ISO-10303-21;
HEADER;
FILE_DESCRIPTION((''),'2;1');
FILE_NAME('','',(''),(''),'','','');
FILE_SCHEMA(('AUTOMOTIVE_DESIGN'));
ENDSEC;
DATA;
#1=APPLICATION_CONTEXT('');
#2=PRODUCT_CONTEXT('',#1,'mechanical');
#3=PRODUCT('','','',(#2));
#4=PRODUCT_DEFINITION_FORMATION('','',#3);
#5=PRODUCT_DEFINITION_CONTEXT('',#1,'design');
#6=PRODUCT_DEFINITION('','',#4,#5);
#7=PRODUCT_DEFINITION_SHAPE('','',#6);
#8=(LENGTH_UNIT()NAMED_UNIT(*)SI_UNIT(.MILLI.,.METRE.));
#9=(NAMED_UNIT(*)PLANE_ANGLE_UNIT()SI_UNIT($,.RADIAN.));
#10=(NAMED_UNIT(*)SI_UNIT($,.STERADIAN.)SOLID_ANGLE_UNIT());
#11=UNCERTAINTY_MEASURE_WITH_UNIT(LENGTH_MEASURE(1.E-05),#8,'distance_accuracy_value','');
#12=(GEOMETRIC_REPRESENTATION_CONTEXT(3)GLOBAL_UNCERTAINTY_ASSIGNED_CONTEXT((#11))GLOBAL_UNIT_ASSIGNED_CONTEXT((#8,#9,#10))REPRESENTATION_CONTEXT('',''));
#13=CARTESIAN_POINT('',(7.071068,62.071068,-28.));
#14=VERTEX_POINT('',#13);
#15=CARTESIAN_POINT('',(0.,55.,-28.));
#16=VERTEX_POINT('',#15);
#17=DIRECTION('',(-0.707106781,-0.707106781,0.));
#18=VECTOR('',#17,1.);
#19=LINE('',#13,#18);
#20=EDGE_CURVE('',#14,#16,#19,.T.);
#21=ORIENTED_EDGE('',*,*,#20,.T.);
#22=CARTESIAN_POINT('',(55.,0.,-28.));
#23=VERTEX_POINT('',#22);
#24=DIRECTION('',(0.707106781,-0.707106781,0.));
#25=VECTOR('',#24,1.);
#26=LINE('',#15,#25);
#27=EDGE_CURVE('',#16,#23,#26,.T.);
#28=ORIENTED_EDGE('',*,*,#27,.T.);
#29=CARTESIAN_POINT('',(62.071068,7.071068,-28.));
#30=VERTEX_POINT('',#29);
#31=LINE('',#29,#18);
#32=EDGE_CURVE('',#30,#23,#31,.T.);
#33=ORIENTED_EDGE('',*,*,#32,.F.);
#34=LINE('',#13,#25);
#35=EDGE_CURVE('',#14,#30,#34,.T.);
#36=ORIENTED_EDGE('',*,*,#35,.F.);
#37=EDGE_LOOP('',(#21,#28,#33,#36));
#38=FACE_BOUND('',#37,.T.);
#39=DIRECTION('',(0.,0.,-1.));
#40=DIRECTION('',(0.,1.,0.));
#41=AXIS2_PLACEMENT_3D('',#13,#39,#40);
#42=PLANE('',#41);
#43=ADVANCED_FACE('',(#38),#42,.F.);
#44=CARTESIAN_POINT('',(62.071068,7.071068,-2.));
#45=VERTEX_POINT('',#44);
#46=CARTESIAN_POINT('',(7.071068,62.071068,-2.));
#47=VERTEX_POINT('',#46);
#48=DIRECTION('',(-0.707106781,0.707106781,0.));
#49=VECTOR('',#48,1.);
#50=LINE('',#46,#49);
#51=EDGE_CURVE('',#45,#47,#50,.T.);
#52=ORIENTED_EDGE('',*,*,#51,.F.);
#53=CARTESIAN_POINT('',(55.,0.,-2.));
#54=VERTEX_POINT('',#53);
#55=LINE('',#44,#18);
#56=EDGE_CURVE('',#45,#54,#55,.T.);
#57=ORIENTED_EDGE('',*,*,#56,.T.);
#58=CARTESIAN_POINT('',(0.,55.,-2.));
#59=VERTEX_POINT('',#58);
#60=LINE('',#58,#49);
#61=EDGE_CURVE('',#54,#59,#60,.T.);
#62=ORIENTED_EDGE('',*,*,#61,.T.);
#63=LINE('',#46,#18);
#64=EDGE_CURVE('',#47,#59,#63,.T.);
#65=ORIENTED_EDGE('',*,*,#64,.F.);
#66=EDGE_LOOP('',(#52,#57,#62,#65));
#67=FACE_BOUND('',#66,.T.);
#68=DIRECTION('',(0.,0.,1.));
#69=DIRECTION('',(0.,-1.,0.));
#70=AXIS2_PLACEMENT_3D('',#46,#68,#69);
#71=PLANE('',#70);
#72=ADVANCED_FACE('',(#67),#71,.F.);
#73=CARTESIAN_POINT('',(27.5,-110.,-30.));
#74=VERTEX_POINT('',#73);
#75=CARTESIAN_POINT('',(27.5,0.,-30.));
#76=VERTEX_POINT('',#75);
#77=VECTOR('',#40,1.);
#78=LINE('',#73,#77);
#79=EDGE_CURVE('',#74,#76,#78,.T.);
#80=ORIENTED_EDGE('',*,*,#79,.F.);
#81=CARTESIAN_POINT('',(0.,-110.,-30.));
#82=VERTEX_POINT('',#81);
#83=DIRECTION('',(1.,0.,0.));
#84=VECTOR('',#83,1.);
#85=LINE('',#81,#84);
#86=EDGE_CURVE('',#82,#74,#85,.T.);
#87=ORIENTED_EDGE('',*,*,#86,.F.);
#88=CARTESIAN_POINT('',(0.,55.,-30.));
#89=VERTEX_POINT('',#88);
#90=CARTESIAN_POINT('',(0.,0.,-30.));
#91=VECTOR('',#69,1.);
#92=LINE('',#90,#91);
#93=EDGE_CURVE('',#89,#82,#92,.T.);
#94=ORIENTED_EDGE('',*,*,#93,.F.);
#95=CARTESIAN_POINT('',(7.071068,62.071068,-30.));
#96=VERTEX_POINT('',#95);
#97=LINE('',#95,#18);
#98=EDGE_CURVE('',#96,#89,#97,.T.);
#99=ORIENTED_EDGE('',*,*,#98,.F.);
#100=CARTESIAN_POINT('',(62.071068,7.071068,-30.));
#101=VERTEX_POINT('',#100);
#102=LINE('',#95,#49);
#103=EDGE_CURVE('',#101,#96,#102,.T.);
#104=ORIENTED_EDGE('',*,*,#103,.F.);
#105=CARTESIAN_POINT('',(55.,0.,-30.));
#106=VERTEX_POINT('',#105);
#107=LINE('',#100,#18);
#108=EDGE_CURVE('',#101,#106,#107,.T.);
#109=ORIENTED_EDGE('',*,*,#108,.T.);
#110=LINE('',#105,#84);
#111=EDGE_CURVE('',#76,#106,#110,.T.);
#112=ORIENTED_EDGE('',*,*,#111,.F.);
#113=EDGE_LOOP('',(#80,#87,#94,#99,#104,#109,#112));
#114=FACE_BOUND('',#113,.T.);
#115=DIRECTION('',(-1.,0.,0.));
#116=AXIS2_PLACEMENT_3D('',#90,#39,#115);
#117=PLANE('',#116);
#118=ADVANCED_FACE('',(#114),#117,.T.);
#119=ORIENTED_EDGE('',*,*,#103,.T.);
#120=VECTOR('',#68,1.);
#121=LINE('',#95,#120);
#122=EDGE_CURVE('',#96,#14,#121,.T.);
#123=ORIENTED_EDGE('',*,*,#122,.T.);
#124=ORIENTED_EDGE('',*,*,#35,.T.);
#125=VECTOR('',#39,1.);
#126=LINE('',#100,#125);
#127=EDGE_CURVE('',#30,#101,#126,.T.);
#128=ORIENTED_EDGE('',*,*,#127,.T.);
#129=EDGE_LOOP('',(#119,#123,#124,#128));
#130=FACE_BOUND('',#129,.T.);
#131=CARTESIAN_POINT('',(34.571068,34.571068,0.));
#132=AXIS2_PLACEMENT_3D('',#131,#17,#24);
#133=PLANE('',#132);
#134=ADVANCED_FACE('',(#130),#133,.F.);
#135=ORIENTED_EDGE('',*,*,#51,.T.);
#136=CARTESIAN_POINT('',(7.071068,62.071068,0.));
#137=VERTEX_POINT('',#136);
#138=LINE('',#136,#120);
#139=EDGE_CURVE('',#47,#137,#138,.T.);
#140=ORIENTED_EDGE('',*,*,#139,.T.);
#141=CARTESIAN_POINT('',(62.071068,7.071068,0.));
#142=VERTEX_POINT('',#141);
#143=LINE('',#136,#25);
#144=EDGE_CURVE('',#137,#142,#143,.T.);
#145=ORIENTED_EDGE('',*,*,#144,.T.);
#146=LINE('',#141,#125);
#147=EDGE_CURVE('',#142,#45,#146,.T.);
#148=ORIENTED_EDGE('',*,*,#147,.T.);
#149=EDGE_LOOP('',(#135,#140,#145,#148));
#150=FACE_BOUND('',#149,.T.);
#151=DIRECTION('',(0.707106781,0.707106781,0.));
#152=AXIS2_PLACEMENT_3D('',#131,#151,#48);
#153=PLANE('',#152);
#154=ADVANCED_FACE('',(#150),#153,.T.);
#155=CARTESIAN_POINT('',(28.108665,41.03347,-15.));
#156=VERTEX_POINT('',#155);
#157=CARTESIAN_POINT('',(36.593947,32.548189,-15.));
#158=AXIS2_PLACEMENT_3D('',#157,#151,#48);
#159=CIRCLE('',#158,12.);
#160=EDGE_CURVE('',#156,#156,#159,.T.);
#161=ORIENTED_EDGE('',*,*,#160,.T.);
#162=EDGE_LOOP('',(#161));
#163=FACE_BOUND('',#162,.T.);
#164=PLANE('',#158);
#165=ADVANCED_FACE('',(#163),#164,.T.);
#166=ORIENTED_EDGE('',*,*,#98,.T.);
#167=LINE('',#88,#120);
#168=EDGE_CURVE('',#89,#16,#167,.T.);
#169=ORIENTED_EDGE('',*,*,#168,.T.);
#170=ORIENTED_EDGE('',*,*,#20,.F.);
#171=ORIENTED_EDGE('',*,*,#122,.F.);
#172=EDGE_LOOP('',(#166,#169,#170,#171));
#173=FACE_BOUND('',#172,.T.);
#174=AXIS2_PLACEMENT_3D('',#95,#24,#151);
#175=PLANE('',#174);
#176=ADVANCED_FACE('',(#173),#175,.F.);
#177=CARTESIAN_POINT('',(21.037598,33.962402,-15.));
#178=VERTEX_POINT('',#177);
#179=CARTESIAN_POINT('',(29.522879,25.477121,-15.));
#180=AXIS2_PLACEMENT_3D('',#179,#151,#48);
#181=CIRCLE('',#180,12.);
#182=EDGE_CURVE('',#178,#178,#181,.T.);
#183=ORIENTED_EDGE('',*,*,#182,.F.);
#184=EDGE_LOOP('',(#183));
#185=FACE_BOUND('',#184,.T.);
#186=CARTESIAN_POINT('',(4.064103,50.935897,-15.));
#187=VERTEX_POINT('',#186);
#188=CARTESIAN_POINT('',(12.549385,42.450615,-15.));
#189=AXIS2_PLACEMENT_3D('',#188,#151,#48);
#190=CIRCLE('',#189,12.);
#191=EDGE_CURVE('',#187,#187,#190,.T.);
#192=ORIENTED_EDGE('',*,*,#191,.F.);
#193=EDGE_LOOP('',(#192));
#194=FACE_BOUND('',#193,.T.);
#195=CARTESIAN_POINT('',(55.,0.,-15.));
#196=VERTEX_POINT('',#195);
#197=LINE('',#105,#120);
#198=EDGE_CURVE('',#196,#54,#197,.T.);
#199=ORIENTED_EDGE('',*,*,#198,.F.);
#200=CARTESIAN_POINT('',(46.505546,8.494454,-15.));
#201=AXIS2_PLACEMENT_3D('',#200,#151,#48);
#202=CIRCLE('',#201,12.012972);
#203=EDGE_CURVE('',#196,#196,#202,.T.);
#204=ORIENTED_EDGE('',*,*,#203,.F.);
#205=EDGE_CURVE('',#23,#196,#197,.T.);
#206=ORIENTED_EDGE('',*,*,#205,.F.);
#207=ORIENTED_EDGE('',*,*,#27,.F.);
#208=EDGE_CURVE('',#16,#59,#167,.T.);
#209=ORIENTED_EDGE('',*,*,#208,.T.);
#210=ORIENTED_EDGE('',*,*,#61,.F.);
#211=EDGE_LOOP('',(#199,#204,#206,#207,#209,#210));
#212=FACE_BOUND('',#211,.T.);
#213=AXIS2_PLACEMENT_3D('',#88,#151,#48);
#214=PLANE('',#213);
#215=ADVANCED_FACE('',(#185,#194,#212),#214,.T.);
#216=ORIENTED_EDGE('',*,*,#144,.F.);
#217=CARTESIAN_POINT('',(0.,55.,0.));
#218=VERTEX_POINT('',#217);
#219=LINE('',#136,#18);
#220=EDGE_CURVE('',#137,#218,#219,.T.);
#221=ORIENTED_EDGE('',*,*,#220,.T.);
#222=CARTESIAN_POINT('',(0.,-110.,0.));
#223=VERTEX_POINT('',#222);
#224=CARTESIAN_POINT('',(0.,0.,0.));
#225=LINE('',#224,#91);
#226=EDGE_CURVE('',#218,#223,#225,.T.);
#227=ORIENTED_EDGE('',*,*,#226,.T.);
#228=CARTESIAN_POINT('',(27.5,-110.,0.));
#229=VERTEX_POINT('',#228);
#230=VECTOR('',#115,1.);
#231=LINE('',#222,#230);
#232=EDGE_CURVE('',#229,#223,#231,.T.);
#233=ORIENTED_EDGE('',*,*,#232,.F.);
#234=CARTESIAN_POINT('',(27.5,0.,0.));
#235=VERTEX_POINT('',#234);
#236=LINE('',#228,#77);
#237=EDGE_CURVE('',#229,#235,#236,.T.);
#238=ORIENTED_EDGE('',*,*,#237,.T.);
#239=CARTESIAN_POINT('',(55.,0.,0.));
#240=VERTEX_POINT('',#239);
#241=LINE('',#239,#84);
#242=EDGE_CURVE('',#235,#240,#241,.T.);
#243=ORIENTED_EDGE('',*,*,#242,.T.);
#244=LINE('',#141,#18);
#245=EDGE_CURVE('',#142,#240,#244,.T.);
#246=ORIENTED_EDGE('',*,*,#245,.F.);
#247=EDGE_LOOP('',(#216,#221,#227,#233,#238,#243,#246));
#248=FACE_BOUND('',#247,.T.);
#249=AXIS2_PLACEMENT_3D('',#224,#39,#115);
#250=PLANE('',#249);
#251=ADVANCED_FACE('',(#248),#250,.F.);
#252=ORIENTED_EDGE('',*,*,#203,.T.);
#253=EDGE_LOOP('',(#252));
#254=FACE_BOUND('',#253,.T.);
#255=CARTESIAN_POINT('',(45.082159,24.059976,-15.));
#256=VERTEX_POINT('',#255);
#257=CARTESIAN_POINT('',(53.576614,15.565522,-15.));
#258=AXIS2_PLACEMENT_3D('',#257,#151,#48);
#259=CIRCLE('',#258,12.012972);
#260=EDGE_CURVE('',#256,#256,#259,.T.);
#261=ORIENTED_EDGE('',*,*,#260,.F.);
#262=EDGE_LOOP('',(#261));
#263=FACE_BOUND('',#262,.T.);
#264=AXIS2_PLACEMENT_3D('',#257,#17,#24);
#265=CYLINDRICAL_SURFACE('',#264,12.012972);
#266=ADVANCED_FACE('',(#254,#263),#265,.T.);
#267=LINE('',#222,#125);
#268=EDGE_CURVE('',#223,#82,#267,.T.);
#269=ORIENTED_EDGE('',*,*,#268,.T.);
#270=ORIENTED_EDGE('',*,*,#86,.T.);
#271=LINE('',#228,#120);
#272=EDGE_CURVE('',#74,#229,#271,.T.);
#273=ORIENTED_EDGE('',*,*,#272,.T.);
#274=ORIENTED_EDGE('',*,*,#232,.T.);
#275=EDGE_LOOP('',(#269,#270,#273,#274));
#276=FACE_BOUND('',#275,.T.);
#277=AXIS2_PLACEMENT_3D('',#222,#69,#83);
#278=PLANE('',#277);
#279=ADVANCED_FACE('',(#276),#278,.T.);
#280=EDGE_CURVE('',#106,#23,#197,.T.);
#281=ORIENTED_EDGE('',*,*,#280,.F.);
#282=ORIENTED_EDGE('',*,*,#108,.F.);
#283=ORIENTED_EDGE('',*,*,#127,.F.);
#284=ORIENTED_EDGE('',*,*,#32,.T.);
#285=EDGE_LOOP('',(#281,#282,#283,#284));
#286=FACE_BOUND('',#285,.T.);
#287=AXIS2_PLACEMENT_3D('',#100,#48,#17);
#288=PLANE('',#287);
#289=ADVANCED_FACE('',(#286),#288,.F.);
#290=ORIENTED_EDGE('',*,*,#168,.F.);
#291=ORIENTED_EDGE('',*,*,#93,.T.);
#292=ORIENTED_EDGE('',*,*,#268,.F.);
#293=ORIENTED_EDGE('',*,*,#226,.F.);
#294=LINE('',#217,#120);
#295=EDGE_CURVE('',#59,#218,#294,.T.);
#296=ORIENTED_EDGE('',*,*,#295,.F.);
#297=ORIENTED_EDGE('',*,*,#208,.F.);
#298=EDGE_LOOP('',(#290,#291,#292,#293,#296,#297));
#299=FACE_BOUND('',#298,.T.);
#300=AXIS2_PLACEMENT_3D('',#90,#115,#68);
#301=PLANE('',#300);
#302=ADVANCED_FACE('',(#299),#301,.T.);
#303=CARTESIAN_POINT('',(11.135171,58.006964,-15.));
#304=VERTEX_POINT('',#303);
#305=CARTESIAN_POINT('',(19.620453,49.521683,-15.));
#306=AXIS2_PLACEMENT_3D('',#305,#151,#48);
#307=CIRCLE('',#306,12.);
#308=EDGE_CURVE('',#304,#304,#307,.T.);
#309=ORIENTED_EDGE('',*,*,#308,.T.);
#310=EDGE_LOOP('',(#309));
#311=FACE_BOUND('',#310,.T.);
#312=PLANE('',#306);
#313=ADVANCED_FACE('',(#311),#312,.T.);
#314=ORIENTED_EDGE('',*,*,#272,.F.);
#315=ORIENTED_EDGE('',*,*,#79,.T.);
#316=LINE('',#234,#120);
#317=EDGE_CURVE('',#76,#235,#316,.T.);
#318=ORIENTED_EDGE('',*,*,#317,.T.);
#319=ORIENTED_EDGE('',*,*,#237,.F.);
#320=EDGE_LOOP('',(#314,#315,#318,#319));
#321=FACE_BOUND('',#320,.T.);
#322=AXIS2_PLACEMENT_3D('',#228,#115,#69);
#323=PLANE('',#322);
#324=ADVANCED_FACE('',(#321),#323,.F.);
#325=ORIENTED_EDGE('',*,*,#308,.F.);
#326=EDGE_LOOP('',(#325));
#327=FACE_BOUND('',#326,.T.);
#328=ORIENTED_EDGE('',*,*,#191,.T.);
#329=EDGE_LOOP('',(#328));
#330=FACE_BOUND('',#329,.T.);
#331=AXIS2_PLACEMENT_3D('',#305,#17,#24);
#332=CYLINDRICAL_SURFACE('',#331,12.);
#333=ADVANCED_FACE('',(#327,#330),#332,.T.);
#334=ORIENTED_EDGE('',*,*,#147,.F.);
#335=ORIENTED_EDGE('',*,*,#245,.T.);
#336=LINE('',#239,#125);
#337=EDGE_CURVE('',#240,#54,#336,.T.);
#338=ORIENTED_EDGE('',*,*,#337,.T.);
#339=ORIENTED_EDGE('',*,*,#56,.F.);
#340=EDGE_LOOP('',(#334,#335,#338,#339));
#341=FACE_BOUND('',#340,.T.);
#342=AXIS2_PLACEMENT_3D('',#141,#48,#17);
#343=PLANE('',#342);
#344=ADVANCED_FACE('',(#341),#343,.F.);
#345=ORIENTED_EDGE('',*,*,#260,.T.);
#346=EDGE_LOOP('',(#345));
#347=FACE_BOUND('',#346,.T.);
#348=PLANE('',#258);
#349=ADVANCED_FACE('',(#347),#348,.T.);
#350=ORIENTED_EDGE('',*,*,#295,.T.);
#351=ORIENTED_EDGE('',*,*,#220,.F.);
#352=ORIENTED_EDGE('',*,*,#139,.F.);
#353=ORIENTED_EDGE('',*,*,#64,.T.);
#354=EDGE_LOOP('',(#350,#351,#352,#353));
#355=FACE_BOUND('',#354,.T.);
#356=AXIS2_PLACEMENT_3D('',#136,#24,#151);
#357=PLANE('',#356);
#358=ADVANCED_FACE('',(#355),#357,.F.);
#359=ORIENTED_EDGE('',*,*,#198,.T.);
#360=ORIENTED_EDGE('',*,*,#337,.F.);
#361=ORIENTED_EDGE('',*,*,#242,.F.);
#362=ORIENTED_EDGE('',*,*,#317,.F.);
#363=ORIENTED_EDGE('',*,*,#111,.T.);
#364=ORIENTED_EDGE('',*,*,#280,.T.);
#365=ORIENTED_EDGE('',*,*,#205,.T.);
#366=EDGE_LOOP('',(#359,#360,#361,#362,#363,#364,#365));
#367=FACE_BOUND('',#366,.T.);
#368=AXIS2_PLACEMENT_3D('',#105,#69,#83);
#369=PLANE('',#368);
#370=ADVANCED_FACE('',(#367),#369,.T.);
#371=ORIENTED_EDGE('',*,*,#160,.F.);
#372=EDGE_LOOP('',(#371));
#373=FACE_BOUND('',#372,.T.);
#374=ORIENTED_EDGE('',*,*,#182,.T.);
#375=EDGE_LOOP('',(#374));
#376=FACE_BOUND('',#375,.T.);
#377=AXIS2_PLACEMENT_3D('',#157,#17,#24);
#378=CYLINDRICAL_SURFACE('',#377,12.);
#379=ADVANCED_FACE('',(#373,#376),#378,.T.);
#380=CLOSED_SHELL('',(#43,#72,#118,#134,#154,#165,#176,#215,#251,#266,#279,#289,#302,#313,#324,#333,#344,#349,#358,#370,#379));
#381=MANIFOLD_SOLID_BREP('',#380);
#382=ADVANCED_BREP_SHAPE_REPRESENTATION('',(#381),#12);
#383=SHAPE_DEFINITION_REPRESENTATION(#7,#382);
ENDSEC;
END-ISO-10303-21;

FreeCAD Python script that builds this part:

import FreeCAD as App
import Part
import Sketcher
from FreeCAD import Vector
Q = App.Units.Quantity


def add_polygon(sketch, points):
    """Adds a closed chain of lines whose ends are joined by coincident constraints."""
    first, n = sketch.GeometryCount, len(points)
    for a, b in zip(points, points[1:] + points[:1]):
        sketch.addGeometry(Part.LineSegment(App.Vector(*a, 0), App.Vector(*b, 0)), False)
    for i in range(n):
        sketch.addConstraint(Sketcher.Constraint("Coincident", first + i, 2, first + (i + 1) % n, 1))

doc = App.newDocument("Part")
body = doc.addObject("PartDesign::Body", "Body")

# Sketch on XY plane
sketch1 = body.newObject("Sketcher::SketchObject", "Sketch")
sketch1.AttachmentSupport = (doc.getObject("XY_Plane"), [""])
sketch1.MapMode = "FlatFace"
add_polygon(sketch1, [(0, 55), (0, 0), (55, 0)])  # lines 0-2
sketch1.addConstraint([
    Sketcher.Constraint("Vertical", 0),
    Sketcher.Constraint("Horizontal", 1),
    Sketcher.Constraint("Coincident", 0, 2, -1, 1),
    Sketcher.Constraint("Equal", 1, 0),
    Sketcher.Constraint("DistanceX", 1, 1, 1, 2, Q("55 mm")),
])
pad1 = body.newObject("PartDesign::Pad", "Pad")
pad1.Profile = sketch1
pad1.Length = 30
pad1.Reversed = True

# Sketch on an angled plane
sketch2 = body.newObject("Sketcher::SketchObject", "Sketch001")
sketch2.Placement = App.Placement(Vector(27.5, 27.5, 0), App.Rotation(Vector(0, 0, -1), Vector(-0.707106781, 0.707106781, 0), Vector(0.707106781, 0.707106781, 0), "ZXY"))
add_polygon(sketch2, [(0, 38.9), (0, -38.9), (2, -38.9), (2, 38.9)])  # lines 0-3
add_polygon(sketch2, [(28, 38.9), (28, -38.9), (30, -38.9), (30, 38.9)])  # lines 4-7
sketch2.addConstraint([
    Sketcher.Constraint("Vertical", 0),
    Sketcher.Constraint("Horizontal", 1),
    Sketcher.Constraint("Vertical", 2),
    Sketcher.Constraint("Horizontal", 3),
    Sketcher.Constraint("Vertical", 4),
    Sketcher.Constraint("Horizontal", 5),
    Sketcher.Constraint("Vertical", 6),
    Sketcher.Constraint("Horizontal", 7),
    Sketcher.Constraint("Symmetric", 0, 2, 3, 2, -1, 1),
    Sketcher.Constraint("Horizontal", 1, 2, 4, 2),
    Sketcher.Constraint("Horizontal", 3, 2, 6, 2),
    Sketcher.Constraint("Equal", 3, 5),
    Sketcher.Constraint("DistanceX", 1, 1, 1, 2, Q("2 mm")),
    Sketcher.Constraint("DistanceX", -1, 1, 4, 2, Q("28 mm")),
    Sketcher.Constraint("DistanceY", 0, 2, 0, 1, Q("77.781746 mm")),
])
pad2 = body.newObject("PartDesign::Pad", "Pad001")
pad2.Profile = sketch2
pad2.Length = 10

# Sketch on XZ plane
sketch3 = body.newObject("Sketcher::SketchObject", "Sketch002")
sketch3.AttachmentSupport = (doc.getObject("XZ_Plane"), [""])
sketch3.MapMode = "FlatFace"
add_polygon(sketch3, [(0, 0), (0, -30), (28, -30), (28, 0)])  # lines 0-3
sketch3.addConstraint([
    Sketcher.Constraint("Vertical", 0),
    Sketcher.Constraint("Horizontal", 1),
    Sketcher.Constraint("Vertical", 2),
    Sketcher.Constraint("Horizontal", 3),
    Sketcher.Constraint("Coincident", 3, 2, -1, 1),
    Sketcher.Constraint("DistanceY", 0, 2, 0, 1, Q("30 mm")),
    Sketcher.Constraint("DistanceX", 1, 1, 1, 2, Q("27.5 mm")),
])
pad3 = body.newObject("PartDesign::Pad", "Pad002")
pad3.Profile = sketch3
pad3.Length = 110

# Sketch on an angled plane
sketch4 = body.newObject("Sketcher::SketchObject", "Sketch003")
sketch4.Placement = App.Placement(Vector(27.5, 27.5, 0), App.Rotation(Vector(0, 0, -1), Vector(-0.707106781, 0.707106781, 0), Vector(0.707106781, 0.707106781, 0), "ZXY"))
sketch4.addGeometry([
    Part.Circle(Vector(15, -27, 0), Vector(0, 0, 1), 12),
    Part.Circle(Vector(15, -3, 0), Vector(0, 0, 1), 12),
    Part.Circle(Vector(15, 21, 0), Vector(0, 0, 1), 12),
], False)
sketch4.addConstraint([
    Sketcher.Constraint("Equal", 1, 2),
    Sketcher.Constraint("Vertical", 0, 3, 1, 3),
    Sketcher.Constraint("Vertical", 1, 3, 2, 3),
    Sketcher.Constraint("Diameter", 1, Q("24 mm")),
    Sketcher.Constraint("DistanceX", -1, 1, 0, 3, Q("15 mm")),
    Sketcher.Constraint("Diameter", 0, Q("24.025945 mm")),
    Sketcher.Constraint("DistanceY", 0, 3, -1, 1, Q("26.877901 mm")),
    Sketcher.Constraint("DistanceY", 1, 3, -1, 1, Q("2.860783 mm")),
    Sketcher.Constraint("DistanceY", -1, 1, 2, 3, Q("21.143363 mm")),
])
pad4 = body.newObject("PartDesign::Pad", "Pad003")
pad4.Profile = sketch4
pad4.Length = 10

doc.recompute()
